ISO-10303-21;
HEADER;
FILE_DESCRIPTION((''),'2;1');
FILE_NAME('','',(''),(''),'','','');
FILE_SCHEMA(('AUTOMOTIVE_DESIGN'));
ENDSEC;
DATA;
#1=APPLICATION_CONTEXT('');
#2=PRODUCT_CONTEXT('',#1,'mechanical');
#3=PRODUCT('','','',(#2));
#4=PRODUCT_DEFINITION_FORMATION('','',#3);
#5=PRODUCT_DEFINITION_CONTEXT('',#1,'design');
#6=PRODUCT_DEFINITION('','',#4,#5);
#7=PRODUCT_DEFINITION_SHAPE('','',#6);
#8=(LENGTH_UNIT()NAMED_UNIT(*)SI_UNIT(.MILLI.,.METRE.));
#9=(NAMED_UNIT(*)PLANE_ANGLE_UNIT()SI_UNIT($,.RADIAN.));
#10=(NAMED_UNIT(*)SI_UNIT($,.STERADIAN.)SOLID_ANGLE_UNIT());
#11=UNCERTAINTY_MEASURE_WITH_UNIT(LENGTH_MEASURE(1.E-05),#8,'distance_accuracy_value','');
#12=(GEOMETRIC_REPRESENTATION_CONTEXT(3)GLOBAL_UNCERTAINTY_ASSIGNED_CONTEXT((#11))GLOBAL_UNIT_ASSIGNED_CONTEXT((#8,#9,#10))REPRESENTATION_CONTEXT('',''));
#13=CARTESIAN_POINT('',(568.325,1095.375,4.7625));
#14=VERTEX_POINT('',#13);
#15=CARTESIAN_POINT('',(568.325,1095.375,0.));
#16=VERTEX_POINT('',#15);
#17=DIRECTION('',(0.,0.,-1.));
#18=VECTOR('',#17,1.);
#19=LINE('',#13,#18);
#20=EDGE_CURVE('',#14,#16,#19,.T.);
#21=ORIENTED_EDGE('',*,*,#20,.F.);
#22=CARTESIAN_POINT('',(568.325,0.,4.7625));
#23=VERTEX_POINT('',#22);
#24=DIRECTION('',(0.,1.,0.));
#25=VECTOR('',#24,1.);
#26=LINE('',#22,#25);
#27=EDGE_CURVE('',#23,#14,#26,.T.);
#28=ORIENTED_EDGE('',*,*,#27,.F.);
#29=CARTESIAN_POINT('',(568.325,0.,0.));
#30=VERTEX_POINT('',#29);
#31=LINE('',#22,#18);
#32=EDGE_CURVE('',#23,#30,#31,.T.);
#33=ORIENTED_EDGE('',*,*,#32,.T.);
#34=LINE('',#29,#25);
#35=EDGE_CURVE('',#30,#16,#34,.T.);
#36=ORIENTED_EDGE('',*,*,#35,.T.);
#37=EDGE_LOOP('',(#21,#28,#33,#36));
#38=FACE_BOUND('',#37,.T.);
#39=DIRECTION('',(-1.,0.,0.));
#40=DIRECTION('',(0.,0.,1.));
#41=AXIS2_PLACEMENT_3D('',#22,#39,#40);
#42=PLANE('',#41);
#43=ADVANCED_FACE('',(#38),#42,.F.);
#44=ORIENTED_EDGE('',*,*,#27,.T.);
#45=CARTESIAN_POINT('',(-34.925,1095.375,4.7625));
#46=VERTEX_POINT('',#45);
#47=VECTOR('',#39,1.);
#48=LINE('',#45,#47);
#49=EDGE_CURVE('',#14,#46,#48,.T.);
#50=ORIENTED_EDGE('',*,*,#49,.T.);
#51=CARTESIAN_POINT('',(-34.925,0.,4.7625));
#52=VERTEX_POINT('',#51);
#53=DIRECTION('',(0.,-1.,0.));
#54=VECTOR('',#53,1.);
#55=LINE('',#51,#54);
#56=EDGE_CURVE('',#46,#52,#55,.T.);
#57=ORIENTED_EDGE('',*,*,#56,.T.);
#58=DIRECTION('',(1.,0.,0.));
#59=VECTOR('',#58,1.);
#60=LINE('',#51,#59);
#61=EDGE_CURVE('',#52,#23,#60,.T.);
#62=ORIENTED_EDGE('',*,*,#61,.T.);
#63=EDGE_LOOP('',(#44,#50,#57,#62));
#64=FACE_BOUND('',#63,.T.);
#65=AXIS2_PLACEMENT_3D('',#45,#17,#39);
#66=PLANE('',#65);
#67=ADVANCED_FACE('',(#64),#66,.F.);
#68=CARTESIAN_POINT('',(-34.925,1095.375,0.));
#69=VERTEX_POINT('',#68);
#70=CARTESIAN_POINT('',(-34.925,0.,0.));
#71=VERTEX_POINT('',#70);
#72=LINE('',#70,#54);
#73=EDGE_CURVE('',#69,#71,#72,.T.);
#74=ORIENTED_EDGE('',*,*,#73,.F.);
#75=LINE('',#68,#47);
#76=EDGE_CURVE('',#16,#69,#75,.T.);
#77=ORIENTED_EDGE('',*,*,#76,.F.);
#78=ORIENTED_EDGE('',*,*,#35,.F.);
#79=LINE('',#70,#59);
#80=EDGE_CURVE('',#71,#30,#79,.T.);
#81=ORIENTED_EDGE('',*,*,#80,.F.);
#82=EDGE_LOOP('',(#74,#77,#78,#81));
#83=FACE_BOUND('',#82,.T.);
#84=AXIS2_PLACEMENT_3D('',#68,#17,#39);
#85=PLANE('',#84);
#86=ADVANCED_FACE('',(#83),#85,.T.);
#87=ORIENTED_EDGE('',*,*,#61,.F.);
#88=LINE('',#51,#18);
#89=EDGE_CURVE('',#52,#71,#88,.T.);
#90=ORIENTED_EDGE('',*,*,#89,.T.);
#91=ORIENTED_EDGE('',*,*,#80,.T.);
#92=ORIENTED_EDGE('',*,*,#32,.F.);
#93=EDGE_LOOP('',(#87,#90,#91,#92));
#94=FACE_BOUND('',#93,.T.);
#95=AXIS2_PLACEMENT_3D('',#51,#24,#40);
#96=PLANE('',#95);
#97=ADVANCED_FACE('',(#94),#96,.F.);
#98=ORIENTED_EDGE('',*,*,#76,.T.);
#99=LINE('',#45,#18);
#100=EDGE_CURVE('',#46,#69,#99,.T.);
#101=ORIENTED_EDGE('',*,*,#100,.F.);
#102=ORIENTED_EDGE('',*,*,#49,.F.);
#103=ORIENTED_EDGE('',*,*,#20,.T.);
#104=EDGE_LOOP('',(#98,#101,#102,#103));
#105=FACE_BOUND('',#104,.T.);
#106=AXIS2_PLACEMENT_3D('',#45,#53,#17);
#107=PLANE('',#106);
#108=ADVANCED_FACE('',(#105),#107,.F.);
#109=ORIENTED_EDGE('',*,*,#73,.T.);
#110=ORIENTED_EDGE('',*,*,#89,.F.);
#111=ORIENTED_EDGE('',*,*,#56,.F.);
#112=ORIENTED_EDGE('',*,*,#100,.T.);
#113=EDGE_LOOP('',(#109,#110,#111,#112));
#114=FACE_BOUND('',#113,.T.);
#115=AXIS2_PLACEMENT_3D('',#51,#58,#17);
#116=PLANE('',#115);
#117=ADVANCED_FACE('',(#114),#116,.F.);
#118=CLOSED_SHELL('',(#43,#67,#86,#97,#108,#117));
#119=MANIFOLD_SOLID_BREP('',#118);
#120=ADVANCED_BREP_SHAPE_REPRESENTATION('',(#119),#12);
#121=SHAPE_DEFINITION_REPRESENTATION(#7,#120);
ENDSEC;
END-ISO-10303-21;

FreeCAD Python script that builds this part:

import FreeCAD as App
import Part
import Sketcher

V = App.Vector
Q = App.Units.Quantity


def add_polygon(sketch, points):
    """Adds a closed chain of lines whose ends are joined by coincident constraints."""
    first, n = sketch.GeometryCount, len(points)
    for a, b in zip(points, points[1:] + points[:1]):
        sketch.addGeometry(Part.LineSegment(App.Vector(*a, 0), App.Vector(*b, 0)), False)
    for i in range(n):
        sketch.addConstraint(Sketcher.Constraint("Coincident", first + i, 2, first + (i + 1) % n, 1))

doc = App.newDocument("Part")
params = doc.addObject("Spreadsheet::Sheet", "Params")
for row, (alias, value) in enumerate([
    ("sketch1_width", "23.75 in"),
    ("sketch1_height", "43.125 in"),
    ("pad1_length", "0.1875 in"),
], start=1):
    params.set(f"A{row}", alias)
    params.set(f"B{row}", "=" + value)
    params.setAlias(f"B{row}", alias)

body = doc.addObject("PartDesign::Body", "Body")

# Sketch on XY plane
sketch1 = doc.addObject("Sketcher::SketchObject", "Sketch")
body.addObject(sketch1)
sketch1.AttachmentSupport = (doc.XY_Plane, [""])
sketch1.MapMode = "FlatFace"
add_polygon(sketch1, [(-34.925, 1095.375), (-34.925, 0), (568.325, 0), (568.325, 1095.375)])  # lines 0-3
sketch1.addConstraint([
    Sketcher.Constraint("Vertical", 0),
    Sketcher.Constraint("Horizontal", 1),
    Sketcher.Constraint("Vertical", 2),
    Sketcher.Constraint("Horizontal", 3),
    Sketcher.Constraint("PointOnObject", 0, 2, -1),
    Sketcher.Constraint("DistanceX", 1, 1, 1, 2, Q("23.75 in")),
    Sketcher.Constraint("DistanceY", 0, 2, 0, 1, Q("43.125 in")),
    Sketcher.Constraint("DistanceX", 0, 2, -1, 1, Q("1.375 in")),
])
sketch1.setExpression("Constraints[9]", "Params.sketch1_width")
sketch1.setExpression("Constraints[10]", "Params.sketch1_height")
pad1 = doc.addObject("PartDesign::Pad", "Pad")
body.addObject(pad1)
pad1.Profile = sketch1
pad1.setExpression("Length", "Params.pad1_length")

doc.recompute()
